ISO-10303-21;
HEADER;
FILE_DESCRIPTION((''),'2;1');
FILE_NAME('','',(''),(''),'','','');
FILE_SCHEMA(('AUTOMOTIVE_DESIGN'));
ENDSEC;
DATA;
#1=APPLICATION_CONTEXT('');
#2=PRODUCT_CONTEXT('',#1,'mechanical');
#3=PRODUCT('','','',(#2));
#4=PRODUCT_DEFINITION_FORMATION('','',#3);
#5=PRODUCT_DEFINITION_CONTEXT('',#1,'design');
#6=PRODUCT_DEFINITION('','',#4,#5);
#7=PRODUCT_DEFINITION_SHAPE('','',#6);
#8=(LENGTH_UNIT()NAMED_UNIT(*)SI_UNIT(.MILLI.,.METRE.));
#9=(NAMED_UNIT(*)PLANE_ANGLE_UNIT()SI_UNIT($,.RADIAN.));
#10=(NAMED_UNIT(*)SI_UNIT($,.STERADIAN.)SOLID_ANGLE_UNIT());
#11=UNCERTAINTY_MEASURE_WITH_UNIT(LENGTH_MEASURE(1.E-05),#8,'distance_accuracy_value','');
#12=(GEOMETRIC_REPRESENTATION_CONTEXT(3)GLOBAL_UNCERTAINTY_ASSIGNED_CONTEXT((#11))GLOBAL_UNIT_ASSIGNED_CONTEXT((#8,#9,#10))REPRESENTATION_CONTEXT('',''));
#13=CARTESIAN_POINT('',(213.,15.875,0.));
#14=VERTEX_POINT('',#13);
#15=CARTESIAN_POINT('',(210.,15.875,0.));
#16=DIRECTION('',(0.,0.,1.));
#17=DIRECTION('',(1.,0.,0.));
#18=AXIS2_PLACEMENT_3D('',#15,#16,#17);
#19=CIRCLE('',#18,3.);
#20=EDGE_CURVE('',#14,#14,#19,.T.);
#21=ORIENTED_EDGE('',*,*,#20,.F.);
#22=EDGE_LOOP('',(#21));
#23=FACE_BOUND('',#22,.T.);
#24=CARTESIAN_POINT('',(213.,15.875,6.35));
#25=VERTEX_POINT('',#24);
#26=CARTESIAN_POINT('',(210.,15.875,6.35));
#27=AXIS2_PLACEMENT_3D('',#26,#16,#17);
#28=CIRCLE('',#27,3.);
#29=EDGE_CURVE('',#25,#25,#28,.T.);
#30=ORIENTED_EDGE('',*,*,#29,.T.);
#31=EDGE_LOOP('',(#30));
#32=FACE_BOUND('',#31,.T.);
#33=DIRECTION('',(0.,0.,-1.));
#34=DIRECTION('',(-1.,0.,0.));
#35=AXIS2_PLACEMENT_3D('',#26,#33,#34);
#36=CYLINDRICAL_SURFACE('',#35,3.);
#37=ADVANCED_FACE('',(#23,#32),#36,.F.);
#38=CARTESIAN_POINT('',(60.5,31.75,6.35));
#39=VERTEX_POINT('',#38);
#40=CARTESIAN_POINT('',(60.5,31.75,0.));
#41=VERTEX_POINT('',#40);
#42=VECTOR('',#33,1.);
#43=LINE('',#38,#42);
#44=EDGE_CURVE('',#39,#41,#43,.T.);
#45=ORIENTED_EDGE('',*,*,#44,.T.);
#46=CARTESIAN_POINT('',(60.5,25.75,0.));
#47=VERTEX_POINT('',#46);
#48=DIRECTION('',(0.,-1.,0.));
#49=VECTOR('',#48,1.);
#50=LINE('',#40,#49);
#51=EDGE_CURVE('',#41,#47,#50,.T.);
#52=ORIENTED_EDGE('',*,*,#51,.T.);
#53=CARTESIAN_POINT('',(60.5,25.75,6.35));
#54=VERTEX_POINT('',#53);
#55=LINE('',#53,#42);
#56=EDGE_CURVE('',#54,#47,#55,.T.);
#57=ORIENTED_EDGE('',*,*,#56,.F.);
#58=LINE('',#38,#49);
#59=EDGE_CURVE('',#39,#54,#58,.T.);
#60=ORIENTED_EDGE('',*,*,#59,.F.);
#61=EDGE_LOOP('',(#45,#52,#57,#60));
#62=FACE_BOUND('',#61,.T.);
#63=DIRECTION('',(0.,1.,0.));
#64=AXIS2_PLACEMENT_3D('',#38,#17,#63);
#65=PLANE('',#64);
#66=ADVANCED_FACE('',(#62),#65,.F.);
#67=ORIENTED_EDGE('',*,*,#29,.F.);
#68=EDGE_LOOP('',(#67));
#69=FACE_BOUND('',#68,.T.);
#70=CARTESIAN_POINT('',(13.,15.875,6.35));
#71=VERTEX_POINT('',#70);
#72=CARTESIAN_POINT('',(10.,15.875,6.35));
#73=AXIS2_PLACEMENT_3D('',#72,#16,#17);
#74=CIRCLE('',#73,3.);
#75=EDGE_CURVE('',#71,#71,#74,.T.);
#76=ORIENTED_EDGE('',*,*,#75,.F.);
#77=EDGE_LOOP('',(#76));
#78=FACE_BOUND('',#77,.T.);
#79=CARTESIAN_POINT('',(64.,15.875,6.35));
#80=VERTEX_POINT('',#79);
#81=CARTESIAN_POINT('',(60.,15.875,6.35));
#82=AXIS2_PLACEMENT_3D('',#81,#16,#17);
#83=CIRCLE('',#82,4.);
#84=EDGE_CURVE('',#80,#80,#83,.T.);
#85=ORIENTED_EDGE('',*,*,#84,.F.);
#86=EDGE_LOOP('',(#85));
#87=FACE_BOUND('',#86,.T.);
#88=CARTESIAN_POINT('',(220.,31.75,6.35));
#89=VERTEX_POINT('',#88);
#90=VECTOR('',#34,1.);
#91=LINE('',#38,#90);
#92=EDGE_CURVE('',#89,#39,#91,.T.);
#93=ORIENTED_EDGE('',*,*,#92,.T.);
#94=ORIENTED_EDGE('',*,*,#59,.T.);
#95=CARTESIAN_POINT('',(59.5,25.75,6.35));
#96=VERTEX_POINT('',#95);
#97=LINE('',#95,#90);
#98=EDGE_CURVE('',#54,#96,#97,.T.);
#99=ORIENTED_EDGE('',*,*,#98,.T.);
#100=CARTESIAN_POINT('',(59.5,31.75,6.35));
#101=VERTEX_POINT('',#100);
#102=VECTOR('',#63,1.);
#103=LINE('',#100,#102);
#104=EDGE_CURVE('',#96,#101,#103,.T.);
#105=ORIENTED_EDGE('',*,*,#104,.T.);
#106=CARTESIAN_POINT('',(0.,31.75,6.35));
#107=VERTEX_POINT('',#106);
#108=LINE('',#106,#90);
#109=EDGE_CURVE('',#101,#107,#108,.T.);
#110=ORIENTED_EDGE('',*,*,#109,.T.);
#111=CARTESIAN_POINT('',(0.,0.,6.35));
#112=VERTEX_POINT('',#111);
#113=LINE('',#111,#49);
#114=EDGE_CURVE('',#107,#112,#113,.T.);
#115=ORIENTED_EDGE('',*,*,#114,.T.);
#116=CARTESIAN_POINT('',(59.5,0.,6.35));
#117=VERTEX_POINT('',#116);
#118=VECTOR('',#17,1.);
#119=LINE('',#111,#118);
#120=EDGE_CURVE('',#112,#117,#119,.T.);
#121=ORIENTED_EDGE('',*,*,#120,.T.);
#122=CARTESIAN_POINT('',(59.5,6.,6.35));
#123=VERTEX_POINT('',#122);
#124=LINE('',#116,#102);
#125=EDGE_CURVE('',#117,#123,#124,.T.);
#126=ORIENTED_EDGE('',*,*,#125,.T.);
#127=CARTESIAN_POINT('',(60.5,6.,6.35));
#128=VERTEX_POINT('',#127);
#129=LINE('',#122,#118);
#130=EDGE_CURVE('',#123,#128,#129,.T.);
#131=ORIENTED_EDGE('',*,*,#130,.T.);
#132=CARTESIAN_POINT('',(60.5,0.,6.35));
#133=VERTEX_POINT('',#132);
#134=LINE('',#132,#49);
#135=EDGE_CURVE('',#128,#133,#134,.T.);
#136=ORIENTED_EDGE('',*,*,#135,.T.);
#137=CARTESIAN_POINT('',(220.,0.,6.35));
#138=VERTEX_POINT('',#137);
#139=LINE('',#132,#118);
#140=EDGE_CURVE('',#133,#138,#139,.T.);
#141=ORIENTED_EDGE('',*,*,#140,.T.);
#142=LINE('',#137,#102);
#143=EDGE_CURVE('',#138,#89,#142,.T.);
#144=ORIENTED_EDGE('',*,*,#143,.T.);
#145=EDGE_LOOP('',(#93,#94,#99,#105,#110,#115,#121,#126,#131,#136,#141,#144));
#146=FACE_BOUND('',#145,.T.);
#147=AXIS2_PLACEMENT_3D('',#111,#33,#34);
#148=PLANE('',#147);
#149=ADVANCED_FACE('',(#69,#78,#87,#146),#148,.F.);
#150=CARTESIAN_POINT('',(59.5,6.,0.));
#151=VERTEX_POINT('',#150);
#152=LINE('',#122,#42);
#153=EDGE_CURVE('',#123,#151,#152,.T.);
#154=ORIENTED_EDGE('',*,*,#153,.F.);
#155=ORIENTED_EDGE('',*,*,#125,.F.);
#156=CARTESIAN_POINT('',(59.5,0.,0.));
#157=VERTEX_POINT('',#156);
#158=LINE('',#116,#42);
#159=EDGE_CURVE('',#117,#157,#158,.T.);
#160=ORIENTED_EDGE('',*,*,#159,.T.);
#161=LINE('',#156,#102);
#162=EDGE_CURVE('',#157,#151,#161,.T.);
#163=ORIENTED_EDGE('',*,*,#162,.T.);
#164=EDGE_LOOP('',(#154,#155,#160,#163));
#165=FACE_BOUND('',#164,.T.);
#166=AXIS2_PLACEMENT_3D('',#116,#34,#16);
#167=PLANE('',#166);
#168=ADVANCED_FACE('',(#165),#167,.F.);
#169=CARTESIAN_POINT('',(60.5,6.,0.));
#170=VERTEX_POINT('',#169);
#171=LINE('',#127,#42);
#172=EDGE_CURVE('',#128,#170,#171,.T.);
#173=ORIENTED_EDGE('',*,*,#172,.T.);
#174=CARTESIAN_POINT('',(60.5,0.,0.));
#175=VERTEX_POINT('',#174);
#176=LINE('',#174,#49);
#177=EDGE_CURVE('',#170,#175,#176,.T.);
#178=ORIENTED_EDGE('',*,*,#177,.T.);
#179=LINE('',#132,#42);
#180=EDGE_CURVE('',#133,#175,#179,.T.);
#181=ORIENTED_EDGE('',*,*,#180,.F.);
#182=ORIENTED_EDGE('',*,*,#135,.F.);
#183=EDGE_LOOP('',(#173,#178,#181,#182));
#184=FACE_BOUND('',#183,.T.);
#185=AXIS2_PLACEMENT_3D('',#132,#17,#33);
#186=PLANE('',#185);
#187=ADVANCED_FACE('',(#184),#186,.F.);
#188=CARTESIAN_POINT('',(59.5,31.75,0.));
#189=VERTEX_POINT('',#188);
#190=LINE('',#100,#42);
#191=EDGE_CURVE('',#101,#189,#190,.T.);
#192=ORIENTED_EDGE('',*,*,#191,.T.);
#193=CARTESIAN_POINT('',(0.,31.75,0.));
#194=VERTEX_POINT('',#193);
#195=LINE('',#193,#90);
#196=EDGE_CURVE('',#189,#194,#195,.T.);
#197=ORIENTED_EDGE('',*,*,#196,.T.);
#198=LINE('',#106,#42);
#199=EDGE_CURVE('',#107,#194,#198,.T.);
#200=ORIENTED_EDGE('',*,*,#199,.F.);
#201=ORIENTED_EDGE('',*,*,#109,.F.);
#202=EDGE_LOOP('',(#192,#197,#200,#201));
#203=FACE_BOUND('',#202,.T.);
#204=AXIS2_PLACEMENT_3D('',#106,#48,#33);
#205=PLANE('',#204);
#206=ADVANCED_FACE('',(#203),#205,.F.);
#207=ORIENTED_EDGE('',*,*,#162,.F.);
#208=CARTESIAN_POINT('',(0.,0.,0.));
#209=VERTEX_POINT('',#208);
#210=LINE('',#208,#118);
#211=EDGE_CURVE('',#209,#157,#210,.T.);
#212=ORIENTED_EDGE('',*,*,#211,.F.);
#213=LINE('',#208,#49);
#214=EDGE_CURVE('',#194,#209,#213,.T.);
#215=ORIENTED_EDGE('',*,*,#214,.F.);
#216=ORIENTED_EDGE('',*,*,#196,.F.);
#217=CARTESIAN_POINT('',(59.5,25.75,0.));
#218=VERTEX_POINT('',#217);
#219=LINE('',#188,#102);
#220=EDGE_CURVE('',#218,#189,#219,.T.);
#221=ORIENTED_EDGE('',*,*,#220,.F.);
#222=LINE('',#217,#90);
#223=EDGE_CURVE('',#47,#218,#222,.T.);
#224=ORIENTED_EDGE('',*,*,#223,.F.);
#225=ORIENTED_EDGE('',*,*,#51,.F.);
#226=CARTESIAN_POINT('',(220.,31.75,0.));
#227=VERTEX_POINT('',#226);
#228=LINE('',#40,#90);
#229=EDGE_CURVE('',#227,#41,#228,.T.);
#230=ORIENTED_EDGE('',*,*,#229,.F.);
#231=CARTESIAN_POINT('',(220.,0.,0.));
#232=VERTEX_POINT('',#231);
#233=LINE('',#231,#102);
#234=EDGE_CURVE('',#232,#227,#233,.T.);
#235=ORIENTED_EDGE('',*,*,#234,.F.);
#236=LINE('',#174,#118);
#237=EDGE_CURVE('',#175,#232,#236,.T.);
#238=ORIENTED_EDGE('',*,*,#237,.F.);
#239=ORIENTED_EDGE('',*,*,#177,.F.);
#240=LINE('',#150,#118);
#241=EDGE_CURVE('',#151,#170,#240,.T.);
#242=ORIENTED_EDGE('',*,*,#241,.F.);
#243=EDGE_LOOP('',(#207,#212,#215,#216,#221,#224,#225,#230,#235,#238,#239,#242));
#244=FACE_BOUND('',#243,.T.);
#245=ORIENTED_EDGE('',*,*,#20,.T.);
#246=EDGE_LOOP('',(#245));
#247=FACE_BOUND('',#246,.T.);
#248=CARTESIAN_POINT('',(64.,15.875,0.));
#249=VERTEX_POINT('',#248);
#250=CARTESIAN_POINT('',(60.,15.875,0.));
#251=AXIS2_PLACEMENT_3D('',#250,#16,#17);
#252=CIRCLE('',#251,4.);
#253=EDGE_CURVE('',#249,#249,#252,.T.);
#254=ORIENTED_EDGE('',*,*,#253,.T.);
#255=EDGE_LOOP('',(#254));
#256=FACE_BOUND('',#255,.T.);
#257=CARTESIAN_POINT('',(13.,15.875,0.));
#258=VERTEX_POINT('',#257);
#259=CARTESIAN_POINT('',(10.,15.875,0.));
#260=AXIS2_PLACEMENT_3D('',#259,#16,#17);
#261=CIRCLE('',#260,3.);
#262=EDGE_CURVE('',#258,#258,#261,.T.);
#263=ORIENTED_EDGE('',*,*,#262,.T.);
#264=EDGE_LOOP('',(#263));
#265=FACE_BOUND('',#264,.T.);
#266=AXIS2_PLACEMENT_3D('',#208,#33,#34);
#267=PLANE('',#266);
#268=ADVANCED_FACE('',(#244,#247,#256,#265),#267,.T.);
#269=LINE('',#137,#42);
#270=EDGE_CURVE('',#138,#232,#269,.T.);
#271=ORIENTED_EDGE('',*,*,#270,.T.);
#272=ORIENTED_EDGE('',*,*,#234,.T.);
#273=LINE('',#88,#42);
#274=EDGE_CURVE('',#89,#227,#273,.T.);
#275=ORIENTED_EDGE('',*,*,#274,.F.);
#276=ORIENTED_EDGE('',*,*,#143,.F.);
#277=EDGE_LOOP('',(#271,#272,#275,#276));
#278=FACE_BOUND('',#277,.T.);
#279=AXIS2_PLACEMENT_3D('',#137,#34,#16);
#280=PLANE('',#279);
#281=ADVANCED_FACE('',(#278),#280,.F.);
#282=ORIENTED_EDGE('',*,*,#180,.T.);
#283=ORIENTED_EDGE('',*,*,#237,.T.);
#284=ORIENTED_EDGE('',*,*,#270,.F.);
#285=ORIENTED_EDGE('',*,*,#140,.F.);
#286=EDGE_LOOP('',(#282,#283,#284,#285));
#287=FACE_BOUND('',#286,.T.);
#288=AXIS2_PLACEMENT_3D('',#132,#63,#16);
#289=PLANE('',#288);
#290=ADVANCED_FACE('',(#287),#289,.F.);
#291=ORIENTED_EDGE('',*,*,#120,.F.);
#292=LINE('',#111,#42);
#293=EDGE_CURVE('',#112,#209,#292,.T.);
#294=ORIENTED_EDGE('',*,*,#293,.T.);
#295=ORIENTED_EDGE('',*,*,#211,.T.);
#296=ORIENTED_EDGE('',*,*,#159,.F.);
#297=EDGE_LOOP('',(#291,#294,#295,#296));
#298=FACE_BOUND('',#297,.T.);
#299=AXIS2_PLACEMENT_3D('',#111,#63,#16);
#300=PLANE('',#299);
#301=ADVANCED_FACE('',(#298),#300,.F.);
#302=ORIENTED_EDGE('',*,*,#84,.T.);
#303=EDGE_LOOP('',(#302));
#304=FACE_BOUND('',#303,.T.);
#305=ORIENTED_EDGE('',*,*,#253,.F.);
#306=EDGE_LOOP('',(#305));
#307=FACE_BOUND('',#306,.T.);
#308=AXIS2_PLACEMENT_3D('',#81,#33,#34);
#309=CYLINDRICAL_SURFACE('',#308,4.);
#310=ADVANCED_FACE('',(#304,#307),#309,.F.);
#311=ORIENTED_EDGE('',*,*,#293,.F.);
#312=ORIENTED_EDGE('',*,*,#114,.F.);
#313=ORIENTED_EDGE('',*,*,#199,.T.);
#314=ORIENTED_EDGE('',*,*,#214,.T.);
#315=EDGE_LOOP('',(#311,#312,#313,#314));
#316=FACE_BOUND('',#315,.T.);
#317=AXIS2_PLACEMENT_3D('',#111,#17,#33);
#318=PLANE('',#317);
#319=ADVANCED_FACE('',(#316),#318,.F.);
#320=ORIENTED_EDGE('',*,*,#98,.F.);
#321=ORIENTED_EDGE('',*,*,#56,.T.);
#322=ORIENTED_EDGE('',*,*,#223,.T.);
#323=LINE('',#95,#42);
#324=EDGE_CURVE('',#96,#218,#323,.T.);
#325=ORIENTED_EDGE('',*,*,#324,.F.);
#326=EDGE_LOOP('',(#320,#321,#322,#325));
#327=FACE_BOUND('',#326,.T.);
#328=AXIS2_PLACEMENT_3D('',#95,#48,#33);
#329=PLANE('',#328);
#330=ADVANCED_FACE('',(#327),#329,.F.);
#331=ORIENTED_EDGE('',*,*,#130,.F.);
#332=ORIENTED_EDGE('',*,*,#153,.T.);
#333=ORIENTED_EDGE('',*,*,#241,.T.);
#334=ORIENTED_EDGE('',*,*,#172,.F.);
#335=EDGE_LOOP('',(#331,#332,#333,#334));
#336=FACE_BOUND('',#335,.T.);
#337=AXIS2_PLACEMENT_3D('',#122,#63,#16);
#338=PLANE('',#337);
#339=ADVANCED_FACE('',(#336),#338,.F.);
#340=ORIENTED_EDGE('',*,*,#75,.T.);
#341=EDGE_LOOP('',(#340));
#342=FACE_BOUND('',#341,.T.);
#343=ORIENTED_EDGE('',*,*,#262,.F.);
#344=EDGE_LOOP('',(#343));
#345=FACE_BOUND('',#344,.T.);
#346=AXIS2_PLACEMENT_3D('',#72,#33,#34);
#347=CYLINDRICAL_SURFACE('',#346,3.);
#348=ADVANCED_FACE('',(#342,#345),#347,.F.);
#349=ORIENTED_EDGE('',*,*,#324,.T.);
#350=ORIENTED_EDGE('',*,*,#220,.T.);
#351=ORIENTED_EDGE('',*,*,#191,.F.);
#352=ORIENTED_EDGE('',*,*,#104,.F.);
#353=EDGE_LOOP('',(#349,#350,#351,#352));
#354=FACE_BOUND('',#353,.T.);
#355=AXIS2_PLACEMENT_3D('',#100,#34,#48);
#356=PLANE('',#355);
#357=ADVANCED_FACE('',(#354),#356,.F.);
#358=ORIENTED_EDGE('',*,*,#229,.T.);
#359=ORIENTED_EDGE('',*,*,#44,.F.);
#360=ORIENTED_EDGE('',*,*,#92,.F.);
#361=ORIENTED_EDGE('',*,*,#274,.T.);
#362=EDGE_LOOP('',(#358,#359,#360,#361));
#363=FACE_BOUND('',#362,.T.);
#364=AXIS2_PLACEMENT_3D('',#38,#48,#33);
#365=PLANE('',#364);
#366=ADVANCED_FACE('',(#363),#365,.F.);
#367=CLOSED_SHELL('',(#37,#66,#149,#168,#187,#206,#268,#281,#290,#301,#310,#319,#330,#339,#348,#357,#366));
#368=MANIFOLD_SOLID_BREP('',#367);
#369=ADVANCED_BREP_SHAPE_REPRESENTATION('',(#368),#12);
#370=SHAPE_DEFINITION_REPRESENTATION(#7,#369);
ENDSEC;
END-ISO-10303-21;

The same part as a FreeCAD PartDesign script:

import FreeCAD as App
import Part
import Sketcher

V = App.Vector


def add_polygon(sketch, points):
    """Adds a closed chain of lines whose ends are joined by coincident constraints."""
    first, n = sketch.GeometryCount, len(points)
    for a, b in zip(points, points[1:] + points[:1]):
        sketch.addGeometry(Part.LineSegment(App.Vector(*a, 0), App.Vector(*b, 0)), False)
    for i in range(n):
        sketch.addConstraint(Sketcher.Constraint("Coincident", first + i, 2, first + (i + 1) % n, 1))

doc = App.newDocument("Part")
body = doc.addObject("PartDesign::Body", "Body")

# Sketch on XY plane
sketch1 = body.newObject("Sketcher::SketchObject", "Sketch")
sketch1.AttachmentSupport = (doc.getObject("XY_Plane"), [""])
sketch1.MapMode = "FlatFace"
add_polygon(sketch1, [(220, 31.8), (60.5, 31.8), (60.5, 25.8), (59.5, 25.8), (59.5, 31.8), (0, 31.8), (0, 0), (59.5, 0), (59.5, 6), (60.5, 6), (60.5, 0), (220, 0)])  # lines 0-11
sketch1.addGeometry(Part.Circle(V(210, 15.9, 0), V(0, 0, 1), 3), False)  # 12
sketch1.addGeometry(Part.Circle(V(60, 15.9, 0), V(0, 0, 1), 4), False)  # 13
sketch1.addGeometry(Part.Circle(V(10, 15.9, 0), V(0, 0, 1), 3), False)  # 14
sketch1.addConstraint([
    Sketcher.Constraint("Horizontal", 0),
    Sketcher.Constraint("Vertical", 1),
    Sketcher.Constraint("Horizontal", 2),
    Sketcher.Constraint("Vertical", 3),
    Sketcher.Constraint("Horizontal", 4),
    Sketcher.Constraint("Vertical", 5),
    Sketcher.Constraint("Horizontal", 6),
    Sketcher.Constraint("Vertical", 7),
    Sketcher.Constraint("Horizontal", 8),
    Sketcher.Constraint("Vertical", 9),
    Sketcher.Constraint("Horizontal", 10),
    Sketcher.Constraint("Vertical", 11),
    Sketcher.Constraint("Coincident", 5, 2, -1, 1),
    Sketcher.Constraint("Equal", 12, 14),
    Sketcher.Constraint("PointOnObject", 9, 2, -1),
    Sketcher.Constraint("Horizontal", 12, 3, 13, 3),
    Sketcher.Constraint("Horizontal", 13, 3, 14, 3),
    Sketcher.Constraint("Horizontal", 0, 2, 3, 2),
    Sketcher.Constraint("Vertical", 3, 2, 6, 2),
    Sketcher.Constraint("Vertical", 1, 2, 8, 2),
    Sketcher.Constraint("Equal", 3, 7),
    Sketcher.Constraint("Diameter", 12, 6.0),
    Sketcher.Constraint("Diameter", 13, 8.0),
    Sketcher.Constraint("DistanceX", 2, 2, 2, 1, 1.0),
    Sketcher.Constraint("DistanceY", 1, 2, 1, 1, 6.0),
    Sketcher.Constraint("DistanceX", 0, 2, 0, 1, 159.5),
    Sketcher.Constraint("DistanceX", 4, 2, 4, 1, 59.5),
    Sketcher.Constraint("DistanceX", -1, 1, 12, 3, 210.0),
    Sketcher.Constraint("DistanceX", -1, 1, 13, 3, 60.0),
    Sketcher.Constraint("DistanceX", -1, 1, 14, 3, 10.0),
    Sketcher.Constraint("DistanceY", 5, 2, 5, 1, 31.75),
    Sketcher.Constraint("DistanceY", -1, 1, 12, 3, 15.875),
])
pad1 = body.newObject("PartDesign::Pad", "Pad")
pad1.Profile = sketch1
pad1.Length = 6.35

doc.recompute()
